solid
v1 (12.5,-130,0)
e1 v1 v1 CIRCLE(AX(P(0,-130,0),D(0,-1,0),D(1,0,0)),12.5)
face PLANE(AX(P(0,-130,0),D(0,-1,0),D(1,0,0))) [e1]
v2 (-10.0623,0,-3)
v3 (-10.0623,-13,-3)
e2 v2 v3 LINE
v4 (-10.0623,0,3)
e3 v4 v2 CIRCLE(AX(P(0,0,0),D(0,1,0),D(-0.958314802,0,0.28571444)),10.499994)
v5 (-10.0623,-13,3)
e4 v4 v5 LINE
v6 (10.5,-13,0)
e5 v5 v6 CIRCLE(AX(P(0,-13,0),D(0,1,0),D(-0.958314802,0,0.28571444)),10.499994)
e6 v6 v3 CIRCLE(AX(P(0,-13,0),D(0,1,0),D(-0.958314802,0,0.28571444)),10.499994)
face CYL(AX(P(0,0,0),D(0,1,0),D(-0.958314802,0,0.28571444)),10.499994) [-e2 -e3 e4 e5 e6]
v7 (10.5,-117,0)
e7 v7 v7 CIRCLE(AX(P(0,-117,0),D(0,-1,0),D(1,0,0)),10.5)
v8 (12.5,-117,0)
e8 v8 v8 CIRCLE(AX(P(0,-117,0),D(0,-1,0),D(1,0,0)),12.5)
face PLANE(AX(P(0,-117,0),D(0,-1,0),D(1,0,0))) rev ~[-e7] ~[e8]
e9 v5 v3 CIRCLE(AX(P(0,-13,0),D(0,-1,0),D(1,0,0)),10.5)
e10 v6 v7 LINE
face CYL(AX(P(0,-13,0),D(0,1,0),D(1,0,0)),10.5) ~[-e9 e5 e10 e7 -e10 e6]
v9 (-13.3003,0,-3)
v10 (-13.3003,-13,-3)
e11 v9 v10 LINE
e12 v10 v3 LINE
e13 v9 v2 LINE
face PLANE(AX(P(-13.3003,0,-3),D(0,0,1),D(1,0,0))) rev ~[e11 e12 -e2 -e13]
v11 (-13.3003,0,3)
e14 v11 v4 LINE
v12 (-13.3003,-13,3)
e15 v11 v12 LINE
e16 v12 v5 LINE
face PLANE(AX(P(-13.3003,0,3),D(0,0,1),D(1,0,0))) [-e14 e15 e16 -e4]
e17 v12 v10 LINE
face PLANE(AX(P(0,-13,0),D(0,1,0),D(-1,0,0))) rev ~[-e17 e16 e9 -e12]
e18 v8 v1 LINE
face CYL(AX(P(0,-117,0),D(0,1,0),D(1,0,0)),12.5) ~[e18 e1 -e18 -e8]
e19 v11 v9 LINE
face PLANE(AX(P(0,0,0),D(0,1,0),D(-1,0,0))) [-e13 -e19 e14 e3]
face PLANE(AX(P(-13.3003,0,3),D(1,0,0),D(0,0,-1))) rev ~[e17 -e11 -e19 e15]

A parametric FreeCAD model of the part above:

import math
import FreeCAD as App
import Part
import Sketcher

V = App.Vector

doc = App.newDocument("Part")
params = doc.addObject("Spreadsheet::Sheet", "Params")
for row, (alias, value) in enumerate([
    ("sketch1_radius", "10.5 mm"),
    ("sketch1_height", "6 mm"),
    ("pad1_length", "13 mm"),
    ("sketch2_diameter", "21 mm"),
    ("pad2_length", "104 mm"),
    ("sketch3_diameter", "25 mm"),
    ("pad3_length", "13 mm"),
], start=1):
    params.set(f"A{row}", alias)
    params.set(f"B{row}", "=" + value)
    params.setAlias(f"B{row}", alias)

body = doc.addObject("PartDesign::Body", "Body")

sketch1 = body.newObject("Sketcher::SketchObject", "Sketch")
sketch1.AttachmentSupport = (doc.getObject("XZ_Plane"), [""])
sketch1.MapMode = "FlatFace"
sketch1.addGeometry([
    Part.LineSegment(V(-13.3, 3, 0), V(-10.1, 3, 0)),
    Part.ArcOfCircle(Part.Circle(V(0, 0, 0), V(0, 0, 1), 10.5), math.radians(-163), math.radians(163)),
    Part.LineSegment(V(-10.1, -3, 0), V(-13.3, -3, 0)),
    Part.LineSegment(V(-13.3, -3, 0), V(-13.3, 3, 0)),
], False)
sketch1.addConstraint([
    Sketcher.Constraint("Coincident", 0, 2, 1, 2),
    Sketcher.Constraint("Coincident", 1, 1, 2, 1),
    Sketcher.Constraint("Coincident", 2, 2, 3, 1),
    Sketcher.Constraint("Coincident", 3, 2, 0, 1),
    Sketcher.Constraint("Horizontal", 0),
    Sketcher.Constraint("Horizontal", 2),
    Sketcher.Constraint("Vertical", 3),
    Sketcher.Constraint("Coincident", 1, 3, -1, 1),
    Sketcher.Constraint("Vertical", 0, 2, 1, 1),
    Sketcher.Constraint("Radius", 1, 10.5),
    Sketcher.Constraint("DistanceY", 3, 1, 3, 2, 6.0),
    Sketcher.Constraint("DistanceX", 0, 1, 0, 2, 3.238),
])
sketch1.setExpression("Constraints[9]", "Params.sketch1_radius")
sketch1.setExpression("Constraints[10]", "Params.sketch1_height")
pad1 = body.newObject("PartDesign::Pad", "Pad")
pad1.Profile = sketch1
pad1.setExpression("Length", "Params.pad1_length")

sketch2 = body.newObject("Sketcher::SketchObject", "Sketch001")
sketch2.AttachmentSupport = (doc.getObject("XZ_Plane"), [""])
sketch2.MapMode = "FlatFace"
sketch2.AttachmentOffset = App.Placement(V(0, 0, 13), App.Rotation())
sketch2.addGeometry(Part.Circle(V(0, 0, 0), V(0, 0, 1), 10), False)
sketch2.addConstraint([
    Sketcher.Constraint("Coincident", 0, 3, -1, 1),
    Sketcher.Constraint("Diameter", 0, 21.0),
])
sketch2.setExpression("Constraints[1]", "Params.sketch2_diameter")
pad2 = body.newObject("PartDesign::Pad", "Pad001")
pad2.Profile = sketch2
pad2.setExpression("Length", "Params.pad2_length")

sketch3 = body.newObject("Sketcher::SketchObject", "Sketch002")
sketch3.AttachmentSupport = (doc.getObject("XZ_Plane"), [""])
sketch3.MapMode = "FlatFace"
sketch3.AttachmentOffset = App.Placement(V(0, 0, 117), App.Rotation())
sketch3.addGeometry(Part.Circle(V(0, 0, 0), V(0, 0, 1), 12), False)
sketch3.addConstraint([
    Sketcher.Constraint("Coincident", 0, 3, -1, 1),
    Sketcher.Constraint("Diameter", 0, 25.0),
])
sketch3.setExpression("Constraints[1]", "Params.sketch3_diameter")
pad3 = body.newObject("PartDesign::Pad", "Pad002")
pad3.Profile = sketch3
pad3.setExpression("Length", "Params.pad3_length")

doc.recompute()
